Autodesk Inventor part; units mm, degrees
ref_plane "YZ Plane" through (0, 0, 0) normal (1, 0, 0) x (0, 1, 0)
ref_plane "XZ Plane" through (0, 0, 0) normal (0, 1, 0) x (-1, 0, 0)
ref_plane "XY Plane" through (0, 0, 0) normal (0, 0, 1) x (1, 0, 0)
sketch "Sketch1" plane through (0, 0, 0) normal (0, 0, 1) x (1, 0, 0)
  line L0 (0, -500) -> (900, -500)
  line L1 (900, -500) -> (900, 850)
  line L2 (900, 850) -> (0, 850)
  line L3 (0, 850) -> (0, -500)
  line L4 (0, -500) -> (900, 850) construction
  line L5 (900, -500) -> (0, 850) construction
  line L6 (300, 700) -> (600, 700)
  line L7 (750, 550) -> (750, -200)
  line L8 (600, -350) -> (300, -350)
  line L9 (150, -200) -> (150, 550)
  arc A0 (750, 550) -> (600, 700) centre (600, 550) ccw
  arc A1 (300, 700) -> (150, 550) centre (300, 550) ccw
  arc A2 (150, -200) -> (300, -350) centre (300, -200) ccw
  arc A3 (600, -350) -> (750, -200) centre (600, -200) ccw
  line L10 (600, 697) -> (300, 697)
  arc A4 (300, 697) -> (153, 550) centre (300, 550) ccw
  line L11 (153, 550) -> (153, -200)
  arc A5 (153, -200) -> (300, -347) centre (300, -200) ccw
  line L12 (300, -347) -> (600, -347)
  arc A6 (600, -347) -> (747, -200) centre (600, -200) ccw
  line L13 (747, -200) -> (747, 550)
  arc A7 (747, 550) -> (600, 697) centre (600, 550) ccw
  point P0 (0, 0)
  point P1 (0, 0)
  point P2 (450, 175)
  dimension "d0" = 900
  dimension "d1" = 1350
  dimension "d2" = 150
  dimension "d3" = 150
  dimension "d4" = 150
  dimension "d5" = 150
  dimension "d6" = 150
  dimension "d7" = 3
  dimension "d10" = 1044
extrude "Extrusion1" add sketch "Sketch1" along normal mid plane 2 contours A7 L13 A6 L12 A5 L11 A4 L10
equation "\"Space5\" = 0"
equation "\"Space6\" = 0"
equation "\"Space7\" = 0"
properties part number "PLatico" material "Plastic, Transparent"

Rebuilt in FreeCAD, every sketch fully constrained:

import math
import FreeCAD as App
import Part
import Sketcher

V = App.Vector

doc = App.newDocument("Part")
params = doc.addObject("Spreadsheet::Sheet", "Params")
for row, (alias, value) in enumerate([
    ("sketch1_radius", "147 mm"),
    ("sketch1_width", "300 mm"),
    ("sketch1_height", "750 mm"),
    ("pad1_length", "2 mm"),
], start=1):
    params.set(f"A{row}", alias)
    params.set(f"B{row}", "=" + value)
    params.setAlias(f"B{row}", alias)

body = doc.addObject("PartDesign::Body", "Body")

sketch1 = body.newObject("Sketcher::SketchObject", "Sketch")
sketch1.AttachmentSupport = (doc.getObject("XY_Plane"), [""])
sketch1.MapMode = "FlatFace"
sketch1.addGeometry([
    Part.ArcOfCircle(Part.Circle(V(600, 550, 0), V(0, 0, 1), 147), math.radians(0), math.radians(90)),
    Part.LineSegment(V(600, 697, 0), V(300, 697, 0)),
    Part.ArcOfCircle(Part.Circle(V(300, 550, 0), V(0, 0, 1), 147), math.radians(90), math.radians(180)),
    Part.LineSegment(V(153, 550, 0), V(153, -200, 0)),
    Part.ArcOfCircle(Part.Circle(V(300, -200, 0), V(0, 0, 1), 147), math.radians(180), math.radians(270)),
    Part.LineSegment(V(300, -347, 0), V(600, -347, 0)),
    Part.ArcOfCircle(Part.Circle(V(600, -200, 0), V(0, 0, 1), 147), math.radians(-90), math.radians(0)),
    Part.LineSegment(V(747, -200, 0), V(747, 550, 0)),
], False)
sketch1.addConstraint([
    Sketcher.Constraint("Tangent", 0, 2, 1, 1),
    Sketcher.Constraint("Tangent", 1, 2, 2, 1),
    Sketcher.Constraint("Tangent", 2, 2, 3, 1),
    Sketcher.Constraint("Tangent", 3, 2, 4, 1),
    Sketcher.Constraint("Tangent", 4, 2, 5, 1),
    Sketcher.Constraint("Tangent", 5, 2, 6, 1),
    Sketcher.Constraint("Tangent", 6, 2, 7, 1),
    Sketcher.Constraint("Tangent", 7, 2, 0, 1),
    Sketcher.Constraint("Horizontal", 1),
    Sketcher.Constraint("Vertical", 3),
    Sketcher.Constraint("Horizontal", 5),
    Sketcher.Constraint("Vertical", 7),
    Sketcher.Constraint("Equal", 0, 2),
    Sketcher.Constraint("Equal", 2, 4),
    Sketcher.Constraint("Equal", 4, 6),
    Sketcher.Constraint("Radius", 0, 147.0),
    Sketcher.Constraint("DistanceX", 1, 2, 1, 1, 300.0),
    Sketcher.Constraint("DistanceY", 3, 2, 3, 1, 750.0),
    Sketcher.Constraint("DistanceX", -1, 1, 0, 3, 600.0),
    Sketcher.Constraint("DistanceY", -1, 1, 0, 3, 550.0),
])
sketch1.setExpression("Constraints[15]", "Params.sketch1_radius")
sketch1.setExpression("Constraints[16]", "Params.sketch1_width")
sketch1.setExpression("Constraints[17]", "Params.sketch1_height")
pad1 = body.newObject("PartDesign::Pad", "Pad")
pad1.Profile = sketch1
pad1.setExpression("Length", "Params.pad1_length")
pad1.Midplane = True

doc.recompute()
